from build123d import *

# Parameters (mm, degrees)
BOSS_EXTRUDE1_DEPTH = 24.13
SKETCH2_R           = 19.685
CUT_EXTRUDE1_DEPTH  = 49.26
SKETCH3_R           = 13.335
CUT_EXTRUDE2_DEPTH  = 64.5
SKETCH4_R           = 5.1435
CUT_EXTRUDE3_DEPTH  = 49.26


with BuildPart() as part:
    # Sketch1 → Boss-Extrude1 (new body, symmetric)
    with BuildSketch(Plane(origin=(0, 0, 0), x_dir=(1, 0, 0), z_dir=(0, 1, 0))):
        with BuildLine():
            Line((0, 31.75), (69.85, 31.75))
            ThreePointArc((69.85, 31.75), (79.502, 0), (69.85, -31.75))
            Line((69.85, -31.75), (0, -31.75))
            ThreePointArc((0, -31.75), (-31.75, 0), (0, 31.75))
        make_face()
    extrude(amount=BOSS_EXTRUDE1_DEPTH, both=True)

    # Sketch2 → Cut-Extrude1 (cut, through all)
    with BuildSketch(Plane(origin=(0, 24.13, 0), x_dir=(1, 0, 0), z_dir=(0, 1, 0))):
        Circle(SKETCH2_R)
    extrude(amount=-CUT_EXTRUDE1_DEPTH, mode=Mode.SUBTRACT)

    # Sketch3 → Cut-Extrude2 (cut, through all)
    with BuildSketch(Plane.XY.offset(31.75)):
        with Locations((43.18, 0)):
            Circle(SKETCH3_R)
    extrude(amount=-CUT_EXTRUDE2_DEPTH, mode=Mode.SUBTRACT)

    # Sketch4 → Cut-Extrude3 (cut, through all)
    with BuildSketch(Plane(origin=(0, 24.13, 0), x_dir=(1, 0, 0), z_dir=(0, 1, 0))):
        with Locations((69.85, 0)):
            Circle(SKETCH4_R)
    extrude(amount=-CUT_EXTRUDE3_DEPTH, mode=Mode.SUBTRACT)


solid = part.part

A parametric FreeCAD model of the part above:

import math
import FreeCAD as App
import Part
import Sketcher
Q = App.Units.Quantity

doc = App.newDocument("Part")
body = doc.addObject("PartDesign::Body", "Body")

# Sketch on XZ plane
sketch1 = doc.addObject("Sketcher::SketchObject", "Sketch")
body.addObject(sketch1)
sketch1.AttachmentSupport = (doc.XZ_Plane, [""])
sketch1.MapMode = "FlatFace"
sketch1.addGeometry([
    Part.LineSegment(App.Vector(69.85, -31.75, 0), App.Vector(0, -31.75, 0)),
    Part.ArcOfCircle(Part.Circle(App.Vector(0, 0, 0), App.Vector(0, 0, 1), 31.75), math.radians(90), math.radians(270)),
    Part.LineSegment(App.Vector(0, 31.75, 0), App.Vector(69.85, 31.75, 0)),
    Part.ArcOfCircle(Part.Circle(App.Vector(22.455605, 0, 0), App.Vector(0, 0, 1), 57.046395), math.radians(-33.818544), math.radians(33.818544)),
], False)
sketch1.addConstraint([
    Sketcher.Constraint("Tangent", 0, 2, 1, 2),
    Sketcher.Constraint("Tangent", 1, 1, 2, 1),
    Sketcher.Constraint("Coincident", 2, 2, 3, 2),
    Sketcher.Constraint("Coincident", 3, 1, 0, 1),
    Sketcher.Constraint("Horizontal", 0),
    Sketcher.Constraint("Horizontal", 2),
    Sketcher.Constraint("Coincident", 1, 3, -1, 1),
    Sketcher.Constraint("PointOnObject", 3, 3, -1),
    Sketcher.Constraint("Radius", 1, Q("1.25 in")),
    Sketcher.Constraint("DistanceX", 0, 2, 0, 1, Q("2.75 in")),
    Sketcher.Constraint("Radius", 3, Q("57.046395 mm")),
])
pad1 = doc.addObject("PartDesign::Pad", "Pad")
body.addObject(pad1)
pad1.Profile = sketch1
pad1.Length = Q("1.9 in")
pad1.Midplane = True

# Sketch on XZ plane
sketch2 = doc.addObject("Sketcher::SketchObject", "Sketch001")
body.addObject(sketch2)
sketch2.AttachmentSupport = (doc.XZ_Plane, [""])
sketch2.MapMode = "FlatFace"
sketch2.AttachmentOffset = App.Placement(App.Vector(0, 0, -0.95 * 25.4), App.Rotation())
sketch2.addGeometry(Part.Circle(App.Vector(0, 0, 0), App.Vector(0, 0, 1), 19.685), False)
sketch2.addConstraint([
    Sketcher.Constraint("Coincident", 0, 3, -1, 1),
    Sketcher.Constraint("Diameter", 0, Q("1.55 in")),
])
pocket1 = doc.addObject("PartDesign::Pocket", "Pocket")
body.addObject(pocket1)
pocket1.Profile = sketch2
pocket1.Type = "ThroughAll"
pocket1.Reversed = True

# Sketch on XY plane
sketch3 = doc.addObject("Sketcher::SketchObject", "Sketch002")
body.addObject(sketch3)
sketch3.AttachmentSupport = (doc.XY_Plane, [""])
sketch3.MapMode = "FlatFace"
sketch3.AttachmentOffset = App.Placement(App.Vector(0, 0, 1.25 * 25.4), App.Rotation())
sketch3.addGeometry(Part.Circle(App.Vector(43.18, 0, 0), App.Vector(0, 0, 1), 13.335), False)
sketch3.addConstraint([
    Sketcher.Constraint("PointOnObject", 0, 3, -1),
    Sketcher.Constraint("Diameter", 0, Q("1.05 in")),
    Sketcher.Constraint("DistanceX", -1, 1, 0, 3, Q("1.7 in")),
])
pocket2 = doc.addObject("PartDesign::Pocket", "Pocket001")
body.addObject(pocket2)
pocket2.Profile = sketch3
pocket2.Type = "ThroughAll"

# Sketch on XZ plane
sketch4 = doc.addObject("Sketcher::SketchObject", "Sketch003")
body.addObject(sketch4)
sketch4.AttachmentSupport = (doc.XZ_Plane, [""])
sketch4.MapMode = "FlatFace"
sketch4.AttachmentOffset = App.Placement(App.Vector(0, 0, -0.95 * 25.4), App.Rotation())
sketch4.addGeometry(Part.Circle(App.Vector(69.85, 0, 0), App.Vector(0, 0, 1), 5.1435), False)
sketch4.addConstraint([
    Sketcher.Constraint("PointOnObject", 0, 3, -1),
    Sketcher.Constraint("Diameter", 0, Q("0.405 in")),
    Sketcher.Constraint("DistanceX", -1, 1, 0, 3, Q("2.75 in")),
])
pocket3 = doc.addObject("PartDesign::Pocket", "Pocket002")
body.addObject(pocket3)
pocket3.Profile = sketch4
pocket3.Type = "ThroughAll"
pocket3.Reversed = True

doc.recompute()
